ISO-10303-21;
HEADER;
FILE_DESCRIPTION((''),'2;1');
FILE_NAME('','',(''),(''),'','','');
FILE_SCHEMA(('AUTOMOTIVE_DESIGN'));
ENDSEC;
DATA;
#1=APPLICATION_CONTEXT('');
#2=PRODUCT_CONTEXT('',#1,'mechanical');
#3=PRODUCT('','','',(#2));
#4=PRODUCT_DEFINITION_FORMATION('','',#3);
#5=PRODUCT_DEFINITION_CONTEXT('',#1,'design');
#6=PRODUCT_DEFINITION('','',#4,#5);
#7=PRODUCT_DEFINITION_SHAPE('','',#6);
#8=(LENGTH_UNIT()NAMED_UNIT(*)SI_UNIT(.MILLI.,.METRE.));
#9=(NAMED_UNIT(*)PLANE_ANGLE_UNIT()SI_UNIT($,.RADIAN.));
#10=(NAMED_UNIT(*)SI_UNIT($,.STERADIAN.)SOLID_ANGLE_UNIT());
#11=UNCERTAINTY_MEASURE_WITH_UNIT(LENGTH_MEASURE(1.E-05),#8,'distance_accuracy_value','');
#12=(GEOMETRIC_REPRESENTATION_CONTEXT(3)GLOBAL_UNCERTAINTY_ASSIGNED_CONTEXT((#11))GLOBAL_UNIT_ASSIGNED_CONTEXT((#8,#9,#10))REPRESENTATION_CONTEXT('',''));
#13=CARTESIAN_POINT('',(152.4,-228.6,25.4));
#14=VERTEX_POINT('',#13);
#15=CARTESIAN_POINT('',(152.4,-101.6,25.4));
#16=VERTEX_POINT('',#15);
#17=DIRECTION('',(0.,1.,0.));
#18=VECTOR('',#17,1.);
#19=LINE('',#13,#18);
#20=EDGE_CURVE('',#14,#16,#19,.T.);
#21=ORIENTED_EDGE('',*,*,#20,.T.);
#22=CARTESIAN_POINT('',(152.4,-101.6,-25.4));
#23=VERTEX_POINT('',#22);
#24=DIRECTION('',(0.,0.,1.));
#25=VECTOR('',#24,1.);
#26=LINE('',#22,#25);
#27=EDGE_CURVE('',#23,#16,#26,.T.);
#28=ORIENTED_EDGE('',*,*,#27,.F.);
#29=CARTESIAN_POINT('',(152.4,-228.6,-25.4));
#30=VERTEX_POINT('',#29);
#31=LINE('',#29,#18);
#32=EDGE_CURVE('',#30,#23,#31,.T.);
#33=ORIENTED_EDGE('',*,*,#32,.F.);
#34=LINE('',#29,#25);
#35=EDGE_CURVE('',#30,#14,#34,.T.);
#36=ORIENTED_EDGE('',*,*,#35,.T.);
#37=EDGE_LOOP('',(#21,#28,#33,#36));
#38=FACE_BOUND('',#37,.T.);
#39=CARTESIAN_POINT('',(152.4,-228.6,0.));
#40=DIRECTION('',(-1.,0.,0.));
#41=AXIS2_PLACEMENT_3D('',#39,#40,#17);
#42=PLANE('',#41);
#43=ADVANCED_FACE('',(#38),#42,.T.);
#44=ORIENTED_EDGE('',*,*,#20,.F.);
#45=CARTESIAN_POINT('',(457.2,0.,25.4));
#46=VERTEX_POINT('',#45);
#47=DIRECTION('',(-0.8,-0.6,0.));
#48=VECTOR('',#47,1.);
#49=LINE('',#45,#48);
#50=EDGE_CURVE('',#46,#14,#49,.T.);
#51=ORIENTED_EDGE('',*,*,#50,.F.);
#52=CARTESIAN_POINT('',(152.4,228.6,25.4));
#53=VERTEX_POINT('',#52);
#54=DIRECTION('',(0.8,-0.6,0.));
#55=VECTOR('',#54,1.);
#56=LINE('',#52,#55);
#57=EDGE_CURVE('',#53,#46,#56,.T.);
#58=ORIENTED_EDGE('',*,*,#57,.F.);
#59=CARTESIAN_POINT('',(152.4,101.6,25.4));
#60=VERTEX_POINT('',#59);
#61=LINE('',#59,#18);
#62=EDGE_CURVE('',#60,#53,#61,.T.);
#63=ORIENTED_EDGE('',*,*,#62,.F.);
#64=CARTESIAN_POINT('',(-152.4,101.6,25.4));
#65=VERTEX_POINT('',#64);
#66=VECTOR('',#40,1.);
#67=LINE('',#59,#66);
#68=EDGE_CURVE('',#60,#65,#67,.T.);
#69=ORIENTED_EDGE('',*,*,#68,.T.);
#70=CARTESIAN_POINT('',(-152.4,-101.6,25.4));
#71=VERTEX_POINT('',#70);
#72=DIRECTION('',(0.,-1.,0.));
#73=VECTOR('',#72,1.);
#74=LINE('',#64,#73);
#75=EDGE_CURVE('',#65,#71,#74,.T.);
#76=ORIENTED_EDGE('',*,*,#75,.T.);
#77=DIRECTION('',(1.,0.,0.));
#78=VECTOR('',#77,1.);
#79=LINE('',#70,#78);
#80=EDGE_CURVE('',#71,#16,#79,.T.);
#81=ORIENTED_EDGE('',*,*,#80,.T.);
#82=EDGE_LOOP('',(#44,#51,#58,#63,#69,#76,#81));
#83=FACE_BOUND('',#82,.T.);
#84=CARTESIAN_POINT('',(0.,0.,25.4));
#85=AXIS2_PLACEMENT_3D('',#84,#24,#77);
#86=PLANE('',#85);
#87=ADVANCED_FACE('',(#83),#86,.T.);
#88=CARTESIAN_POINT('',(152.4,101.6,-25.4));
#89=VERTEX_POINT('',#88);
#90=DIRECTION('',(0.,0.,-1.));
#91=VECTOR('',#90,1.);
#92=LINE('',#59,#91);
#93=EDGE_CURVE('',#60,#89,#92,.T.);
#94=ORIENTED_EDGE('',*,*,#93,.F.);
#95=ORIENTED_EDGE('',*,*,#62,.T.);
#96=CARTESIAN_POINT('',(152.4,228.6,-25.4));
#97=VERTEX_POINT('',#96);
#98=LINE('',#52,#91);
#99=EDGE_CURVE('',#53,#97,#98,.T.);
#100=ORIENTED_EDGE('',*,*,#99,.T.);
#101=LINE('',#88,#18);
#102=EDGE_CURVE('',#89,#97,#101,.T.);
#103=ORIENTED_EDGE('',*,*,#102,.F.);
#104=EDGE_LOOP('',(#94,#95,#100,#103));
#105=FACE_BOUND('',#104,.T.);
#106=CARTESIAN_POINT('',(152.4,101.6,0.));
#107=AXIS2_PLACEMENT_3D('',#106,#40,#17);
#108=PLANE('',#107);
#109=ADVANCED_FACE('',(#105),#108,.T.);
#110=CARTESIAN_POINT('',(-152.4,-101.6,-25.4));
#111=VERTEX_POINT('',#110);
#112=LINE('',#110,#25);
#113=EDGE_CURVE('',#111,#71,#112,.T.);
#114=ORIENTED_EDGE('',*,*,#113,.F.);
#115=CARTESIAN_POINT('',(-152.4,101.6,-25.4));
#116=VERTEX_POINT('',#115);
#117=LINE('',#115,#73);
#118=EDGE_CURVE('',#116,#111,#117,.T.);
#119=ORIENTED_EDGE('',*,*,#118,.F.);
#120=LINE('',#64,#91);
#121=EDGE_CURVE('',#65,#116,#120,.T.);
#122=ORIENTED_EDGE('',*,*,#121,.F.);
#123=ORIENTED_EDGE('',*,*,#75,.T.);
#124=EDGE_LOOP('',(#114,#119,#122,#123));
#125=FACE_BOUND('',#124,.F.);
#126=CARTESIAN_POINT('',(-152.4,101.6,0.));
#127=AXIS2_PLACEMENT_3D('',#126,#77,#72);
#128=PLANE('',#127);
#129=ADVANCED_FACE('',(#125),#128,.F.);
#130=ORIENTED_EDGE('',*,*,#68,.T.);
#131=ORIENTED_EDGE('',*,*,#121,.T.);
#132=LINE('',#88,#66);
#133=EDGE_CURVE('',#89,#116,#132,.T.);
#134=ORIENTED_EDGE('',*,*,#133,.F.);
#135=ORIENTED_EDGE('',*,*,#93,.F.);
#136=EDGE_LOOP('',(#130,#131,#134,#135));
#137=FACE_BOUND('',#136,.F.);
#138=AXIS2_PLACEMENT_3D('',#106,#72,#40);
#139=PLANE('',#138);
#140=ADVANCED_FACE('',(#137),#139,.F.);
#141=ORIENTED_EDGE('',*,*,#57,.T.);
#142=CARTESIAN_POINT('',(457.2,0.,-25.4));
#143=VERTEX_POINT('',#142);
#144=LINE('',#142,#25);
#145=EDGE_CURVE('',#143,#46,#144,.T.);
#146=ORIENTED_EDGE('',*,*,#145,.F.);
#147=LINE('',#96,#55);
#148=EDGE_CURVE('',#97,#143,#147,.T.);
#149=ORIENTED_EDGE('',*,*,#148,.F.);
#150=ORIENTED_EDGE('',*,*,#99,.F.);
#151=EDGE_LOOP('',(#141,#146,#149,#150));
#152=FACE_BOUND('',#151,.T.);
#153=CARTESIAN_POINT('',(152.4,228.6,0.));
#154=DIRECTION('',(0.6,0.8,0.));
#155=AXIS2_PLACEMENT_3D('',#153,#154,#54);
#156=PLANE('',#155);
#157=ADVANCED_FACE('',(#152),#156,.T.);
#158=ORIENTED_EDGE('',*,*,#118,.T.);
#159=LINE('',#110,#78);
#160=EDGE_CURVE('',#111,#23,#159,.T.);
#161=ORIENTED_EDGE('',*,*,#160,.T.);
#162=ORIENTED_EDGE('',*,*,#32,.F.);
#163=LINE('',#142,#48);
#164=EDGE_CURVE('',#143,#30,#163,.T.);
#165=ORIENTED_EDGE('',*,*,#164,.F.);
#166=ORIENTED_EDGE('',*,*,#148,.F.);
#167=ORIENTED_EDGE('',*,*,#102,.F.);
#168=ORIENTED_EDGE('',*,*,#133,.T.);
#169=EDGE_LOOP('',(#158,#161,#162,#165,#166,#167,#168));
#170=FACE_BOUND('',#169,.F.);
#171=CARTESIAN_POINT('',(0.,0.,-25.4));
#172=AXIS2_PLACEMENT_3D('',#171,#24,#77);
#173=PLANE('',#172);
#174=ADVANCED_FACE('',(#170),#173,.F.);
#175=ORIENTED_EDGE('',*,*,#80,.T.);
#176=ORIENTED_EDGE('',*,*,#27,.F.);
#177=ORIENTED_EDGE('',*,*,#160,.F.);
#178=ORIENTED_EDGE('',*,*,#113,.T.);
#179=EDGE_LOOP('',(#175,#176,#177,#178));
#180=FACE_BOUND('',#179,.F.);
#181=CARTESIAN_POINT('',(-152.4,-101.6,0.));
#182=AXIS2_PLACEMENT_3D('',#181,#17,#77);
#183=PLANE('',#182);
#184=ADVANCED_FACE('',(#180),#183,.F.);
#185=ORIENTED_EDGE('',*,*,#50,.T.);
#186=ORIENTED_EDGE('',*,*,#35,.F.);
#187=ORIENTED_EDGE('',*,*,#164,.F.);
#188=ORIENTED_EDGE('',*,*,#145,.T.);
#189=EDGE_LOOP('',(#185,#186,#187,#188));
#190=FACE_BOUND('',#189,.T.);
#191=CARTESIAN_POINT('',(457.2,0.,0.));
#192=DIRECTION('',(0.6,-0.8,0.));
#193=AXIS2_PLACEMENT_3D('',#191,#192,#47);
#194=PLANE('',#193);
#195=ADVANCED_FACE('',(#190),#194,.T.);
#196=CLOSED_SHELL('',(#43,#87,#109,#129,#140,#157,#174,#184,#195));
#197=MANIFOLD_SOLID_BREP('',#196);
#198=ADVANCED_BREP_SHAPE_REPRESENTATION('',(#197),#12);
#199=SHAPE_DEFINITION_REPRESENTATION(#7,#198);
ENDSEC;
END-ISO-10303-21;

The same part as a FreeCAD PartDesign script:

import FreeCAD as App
import Part
import Sketcher
from FreeCAD import Vector
Q = App.Units.Quantity


def add_polygon(sketch, points):
    """Adds a closed chain of lines whose ends are joined by coincident constraints."""
    first, n = sketch.GeometryCount, len(points)
    for a, b in zip(points, points[1:] + points[:1]):
        sketch.addGeometry(Part.LineSegment(App.Vector(*a, 0), App.Vector(*b, 0)), False)
    for i in range(n):
        sketch.addConstraint(Sketcher.Constraint("Coincident", first + i, 2, first + (i + 1) % n, 1))

doc = App.newDocument("Part")
body = doc.addObject("PartDesign::Body", "Body")

# Sketch on XY plane
sketch1 = body.newObject("Sketcher::SketchObject", "Sketch")
sketch1.AttachmentSupport = (doc.getObject("XY_Plane"), [""])
sketch1.MapMode = "FlatFace"
add_polygon(sketch1, [(-152.4, 101.6), (-152.4, -101.6), (152.4, -101.6), (152.4, -228.6), (457.2, 0), (152.4, 228.6), (152.4, 101.6)])  # lines 0-6
sketch1.addConstraint(Sketcher.Constraint("Vertical", 0))
sketch1.addConstraint(Sketcher.Constraint("Horizontal", 1))
sketch1.addConstraint(Sketcher.Constraint("Vertical", 2))
sketch1.addConstraint(Sketcher.Constraint("Vertical", 5))
sketch1.addConstraint(Sketcher.Constraint("Horizontal", 6))
sketch1.addConstraint(Sketcher.Constraint("Symmetric", 0, 2, 5, 2, -1, 1))
sketch1.addConstraint(Sketcher.Constraint("Symmetric", 2, 2, 4, 2, -1))
sketch1.addConstraint(Sketcher.Constraint("PointOnObject", 3, 2, -1))
sketch1.addConstraint(Sketcher.Constraint("DistanceX", 1, 1, 1, 2, Q("12 in")))
sketch1.addConstraint(Sketcher.Constraint("DistanceY", 0, 2, 0, 1, Q("8 in")))
sketch1.addConstraint(Sketcher.Constraint("DistanceX", -1, 1, 3, 2, Q("18 in")))
sketch1.addConstraint(Sketcher.Constraint("DistanceY", 2, 2, 4, 2, Q("18 in")))
pad1 = body.newObject("PartDesign::Pad", "Pad")
pad1.Profile = sketch1
pad1.Length = Q("2 in")
pad1.Midplane = True

doc.recompute()
